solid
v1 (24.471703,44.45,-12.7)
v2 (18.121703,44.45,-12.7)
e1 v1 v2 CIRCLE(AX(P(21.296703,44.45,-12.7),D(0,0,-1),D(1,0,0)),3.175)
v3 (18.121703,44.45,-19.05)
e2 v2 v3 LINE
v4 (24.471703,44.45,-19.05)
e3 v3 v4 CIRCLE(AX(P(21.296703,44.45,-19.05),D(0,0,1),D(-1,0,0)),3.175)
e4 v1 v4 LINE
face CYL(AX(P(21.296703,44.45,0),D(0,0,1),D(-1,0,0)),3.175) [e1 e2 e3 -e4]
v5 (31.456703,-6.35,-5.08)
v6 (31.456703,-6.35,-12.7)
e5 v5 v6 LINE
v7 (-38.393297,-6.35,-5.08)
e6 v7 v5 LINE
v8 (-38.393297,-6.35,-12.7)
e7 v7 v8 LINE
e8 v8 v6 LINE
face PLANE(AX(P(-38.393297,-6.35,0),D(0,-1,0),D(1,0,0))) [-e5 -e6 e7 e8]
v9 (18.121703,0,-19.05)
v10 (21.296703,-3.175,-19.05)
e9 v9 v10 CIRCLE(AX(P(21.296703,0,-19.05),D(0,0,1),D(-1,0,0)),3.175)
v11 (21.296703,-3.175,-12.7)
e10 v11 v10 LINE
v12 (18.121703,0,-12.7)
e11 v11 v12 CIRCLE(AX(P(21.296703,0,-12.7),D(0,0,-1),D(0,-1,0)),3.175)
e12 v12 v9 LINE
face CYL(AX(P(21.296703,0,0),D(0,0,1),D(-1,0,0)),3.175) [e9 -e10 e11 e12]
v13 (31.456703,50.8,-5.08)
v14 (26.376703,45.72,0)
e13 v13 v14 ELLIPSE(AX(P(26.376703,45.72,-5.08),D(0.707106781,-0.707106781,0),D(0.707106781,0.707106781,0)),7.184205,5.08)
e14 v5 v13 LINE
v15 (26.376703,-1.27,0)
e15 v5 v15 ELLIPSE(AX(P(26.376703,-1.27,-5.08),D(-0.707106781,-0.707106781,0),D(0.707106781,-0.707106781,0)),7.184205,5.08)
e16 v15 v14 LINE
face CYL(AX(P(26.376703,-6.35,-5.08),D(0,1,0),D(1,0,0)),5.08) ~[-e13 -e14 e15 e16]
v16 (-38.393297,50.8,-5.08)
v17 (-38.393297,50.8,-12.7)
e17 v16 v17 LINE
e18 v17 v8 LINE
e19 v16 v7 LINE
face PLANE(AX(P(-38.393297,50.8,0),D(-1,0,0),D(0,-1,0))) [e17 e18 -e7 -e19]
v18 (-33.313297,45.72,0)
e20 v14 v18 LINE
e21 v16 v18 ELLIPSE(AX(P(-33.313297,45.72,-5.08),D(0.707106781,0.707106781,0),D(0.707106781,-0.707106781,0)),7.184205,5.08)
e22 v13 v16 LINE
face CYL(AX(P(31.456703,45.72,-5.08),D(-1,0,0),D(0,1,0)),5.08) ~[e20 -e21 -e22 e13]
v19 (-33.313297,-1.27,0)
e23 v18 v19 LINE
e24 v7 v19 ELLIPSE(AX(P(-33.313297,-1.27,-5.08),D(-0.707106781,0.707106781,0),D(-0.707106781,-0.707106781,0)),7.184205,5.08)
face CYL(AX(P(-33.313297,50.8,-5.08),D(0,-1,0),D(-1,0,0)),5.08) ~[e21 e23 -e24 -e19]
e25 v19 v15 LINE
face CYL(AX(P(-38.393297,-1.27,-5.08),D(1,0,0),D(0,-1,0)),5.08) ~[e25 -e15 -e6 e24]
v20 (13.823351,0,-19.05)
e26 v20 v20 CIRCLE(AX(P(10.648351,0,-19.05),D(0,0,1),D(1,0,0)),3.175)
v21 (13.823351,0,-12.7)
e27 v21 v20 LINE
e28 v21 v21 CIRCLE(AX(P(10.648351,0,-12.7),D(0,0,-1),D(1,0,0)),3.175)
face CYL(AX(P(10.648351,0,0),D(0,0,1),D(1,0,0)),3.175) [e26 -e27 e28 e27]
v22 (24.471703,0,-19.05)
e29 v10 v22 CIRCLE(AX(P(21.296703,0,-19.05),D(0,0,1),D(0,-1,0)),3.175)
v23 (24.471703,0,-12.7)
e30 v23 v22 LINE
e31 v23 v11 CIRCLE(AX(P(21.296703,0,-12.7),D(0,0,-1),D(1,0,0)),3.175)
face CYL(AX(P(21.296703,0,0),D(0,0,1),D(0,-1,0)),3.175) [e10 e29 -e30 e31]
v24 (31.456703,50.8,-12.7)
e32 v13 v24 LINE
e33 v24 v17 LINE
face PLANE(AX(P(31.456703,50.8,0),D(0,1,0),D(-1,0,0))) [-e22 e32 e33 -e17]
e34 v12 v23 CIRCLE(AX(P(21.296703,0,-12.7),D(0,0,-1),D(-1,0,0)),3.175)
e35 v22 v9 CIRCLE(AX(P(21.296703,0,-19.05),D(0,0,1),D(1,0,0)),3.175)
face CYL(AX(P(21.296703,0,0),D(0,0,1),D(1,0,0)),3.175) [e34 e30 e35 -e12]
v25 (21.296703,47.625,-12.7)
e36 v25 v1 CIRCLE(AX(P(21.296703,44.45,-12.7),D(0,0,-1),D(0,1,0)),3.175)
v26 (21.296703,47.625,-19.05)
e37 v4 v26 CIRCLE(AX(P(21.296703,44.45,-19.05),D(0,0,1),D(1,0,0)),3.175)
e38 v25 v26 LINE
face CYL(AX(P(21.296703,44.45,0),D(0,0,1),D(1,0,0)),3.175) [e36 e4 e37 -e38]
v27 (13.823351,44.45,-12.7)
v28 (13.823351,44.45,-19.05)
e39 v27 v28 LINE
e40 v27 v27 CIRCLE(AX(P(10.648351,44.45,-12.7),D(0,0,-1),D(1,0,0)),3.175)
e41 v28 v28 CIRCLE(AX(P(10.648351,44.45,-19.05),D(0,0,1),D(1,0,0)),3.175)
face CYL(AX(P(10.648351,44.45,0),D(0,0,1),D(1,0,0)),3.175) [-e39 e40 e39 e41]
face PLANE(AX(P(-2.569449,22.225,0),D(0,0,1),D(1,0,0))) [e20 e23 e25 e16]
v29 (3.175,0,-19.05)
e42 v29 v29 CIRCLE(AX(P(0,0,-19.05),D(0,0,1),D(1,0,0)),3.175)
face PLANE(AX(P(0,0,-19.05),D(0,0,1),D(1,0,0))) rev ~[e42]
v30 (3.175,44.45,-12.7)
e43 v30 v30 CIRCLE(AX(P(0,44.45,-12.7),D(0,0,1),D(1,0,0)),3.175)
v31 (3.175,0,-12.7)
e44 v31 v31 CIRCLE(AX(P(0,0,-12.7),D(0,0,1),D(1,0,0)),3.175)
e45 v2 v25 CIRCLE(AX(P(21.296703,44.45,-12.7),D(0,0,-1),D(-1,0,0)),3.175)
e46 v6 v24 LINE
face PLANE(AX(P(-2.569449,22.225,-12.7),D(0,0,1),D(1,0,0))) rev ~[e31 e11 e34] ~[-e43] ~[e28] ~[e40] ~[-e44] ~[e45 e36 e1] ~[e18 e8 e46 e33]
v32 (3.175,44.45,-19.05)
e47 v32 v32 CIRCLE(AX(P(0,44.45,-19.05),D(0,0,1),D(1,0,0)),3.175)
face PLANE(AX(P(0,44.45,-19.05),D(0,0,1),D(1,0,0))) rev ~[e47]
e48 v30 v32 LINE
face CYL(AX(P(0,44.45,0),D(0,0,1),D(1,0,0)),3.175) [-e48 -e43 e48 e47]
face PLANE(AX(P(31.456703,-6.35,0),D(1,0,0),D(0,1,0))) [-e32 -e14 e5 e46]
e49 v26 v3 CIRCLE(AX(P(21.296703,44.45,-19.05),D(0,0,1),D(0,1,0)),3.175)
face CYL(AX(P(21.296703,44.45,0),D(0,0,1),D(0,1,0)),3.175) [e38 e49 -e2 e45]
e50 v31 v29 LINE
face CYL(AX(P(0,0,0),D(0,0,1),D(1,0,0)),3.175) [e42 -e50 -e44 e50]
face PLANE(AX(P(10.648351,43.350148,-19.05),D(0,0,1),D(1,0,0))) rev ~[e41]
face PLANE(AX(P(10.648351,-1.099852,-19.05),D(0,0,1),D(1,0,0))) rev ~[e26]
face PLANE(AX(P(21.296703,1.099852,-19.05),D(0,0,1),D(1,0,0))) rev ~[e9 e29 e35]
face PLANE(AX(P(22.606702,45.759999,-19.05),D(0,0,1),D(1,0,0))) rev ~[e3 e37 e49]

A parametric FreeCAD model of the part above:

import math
import FreeCAD as App
import Part
import Sketcher
from FreeCAD import Vector
Q = App.Units.Quantity


def edges_at(feature, points):
    """Names of the edges that pass closest to the given points."""
    edges = feature.Shape.Edges
    near = lambda p: min(range(len(edges)), key=lambda i: edges[i].distToShape(Part.Vertex(*p))[0])
    return sorted({f"Edge{near(p) + 1}" for p in points})


def add_polygon(sketch, points):
    """Adds a closed chain of lines whose ends are joined by coincident constraints."""
    first, n = sketch.GeometryCount, len(points)
    for a, b in zip(points, points[1:] + points[:1]):
        sketch.addGeometry(Part.LineSegment(App.Vector(*a, 0), App.Vector(*b, 0)), False)
    for i in range(n):
        sketch.addConstraint(Sketcher.Constraint("Coincident", first + i, 2, first + (i + 1) % n, 1))

doc = App.newDocument("Part")
body = doc.addObject("PartDesign::Body", "Body")

# Sketch on XY plane
sketch1 = body.newObject("Sketcher::SketchObject", "Sketch")
sketch1.AttachmentSupport = (doc.getObject("XY_Plane"), [""])
sketch1.MapMode = "FlatFace"
add_polygon(sketch1, [(-38.4, 50.8), (-38.4, -6.3), (31.5, -6.3), (31.5, 50.8)])  # lines 0-3
sketch1.addGeometry(Part.ArcOfCircle(Part.Circle(Vector(21.3, 0, 0), Vector(0, 0, 1), 3.2), math.radians(180), math.radians(270)), False)  # 4
sketch1.addGeometry(Part.ArcOfCircle(Part.Circle(Vector(21.3, 0, 0), Vector(0, 0, 1), 3.2), math.radians(0), math.radians(180)), False)  # 5
sketch1.addGeometry(Part.ArcOfCircle(Part.Circle(Vector(21.3, 0, 0), Vector(0, 0, 1), 3.2), math.radians(-90), math.radians(0)), False)  # 6
sketch1.addGeometry(Part.ArcOfCircle(Part.Circle(Vector(21.3, 44.5, 0), Vector(0, 0, 1), 3.2), math.radians(90), math.radians(180)), False)  # 7
sketch1.addGeometry(Part.ArcOfCircle(Part.Circle(Vector(21.3, 44.5, 0), Vector(0, 0, 1), 3.2), math.radians(0), math.radians(90)), False)  # 8
sketch1.addGeometry(Part.ArcOfCircle(Part.Circle(Vector(21.3, 44.5, 0), Vector(0, 0, 1), 3.2), math.radians(180), math.radians(360)), False)  # 9
sketch1.addGeometry(Part.Circle(Vector(0, 0, 0), Vector(0, 0, 1), 3.2), False)  # 10
sketch1.addGeometry(Part.Circle(Vector(10.6, 0, 0), Vector(0, 0, 1), 3.2), False)  # 11
sketch1.addGeometry(Part.Circle(Vector(0, 44.5, 0), Vector(0, 0, 1), 3.2), False)  # 12
sketch1.addGeometry(Part.Circle(Vector(10.6, 44.5, 0), Vector(0, 0, 1), 3.2), False)  # 13
sketch1.addConstraint(Sketcher.Constraint("Tangent", 4, 1, 5, 2))
sketch1.addConstraint(Sketcher.Constraint("Tangent", 5, 1, 6, 2))
sketch1.addConstraint(Sketcher.Constraint("Tangent", 6, 1, 4, 2))
sketch1.addConstraint(Sketcher.Constraint("Tangent", 7, 1, 8, 2))
sketch1.addConstraint(Sketcher.Constraint("Tangent", 8, 1, 9, 2))
sketch1.addConstraint(Sketcher.Constraint("Tangent", 9, 1, 7, 2))
sketch1.addConstraint(Sketcher.Constraint("Vertical", 0))
sketch1.addConstraint(Sketcher.Constraint("Horizontal", 1))
sketch1.addConstraint(Sketcher.Constraint("Vertical", 2))
sketch1.addConstraint(Sketcher.Constraint("Horizontal", 3))
sketch1.addConstraint(Sketcher.Constraint("Coincident", 10, 3, -1, 1))
sketch1.addConstraint(Sketcher.Constraint("Equal", 6, 7))
sketch1.addConstraint(Sketcher.Constraint("Equal", 9, 10))
sketch1.addConstraint(Sketcher.Constraint("Equal", 10, 11))
sketch1.addConstraint(Sketcher.Constraint("Equal", 11, 12))
sketch1.addConstraint(Sketcher.Constraint("Equal", 12, 13))
sketch1.addConstraint(Sketcher.Constraint("PointOnObject", 4, 3, -1))
sketch1.addConstraint(Sketcher.Constraint("PointOnObject", 11, 3, -1))
sketch1.addConstraint(Sketcher.Constraint("PointOnObject", 12, 3, -2))
sketch1.addConstraint(Sketcher.Constraint("PointOnObject", 4, 1, -1))
sketch1.addConstraint(Sketcher.Constraint("PointOnObject", 5, 1, -1))
sketch1.addConstraint(Sketcher.Constraint("Horizontal", 9, 3, 12, 3))
sketch1.addConstraint(Sketcher.Constraint("Horizontal", 12, 3, 13, 3))
sketch1.addConstraint(Sketcher.Constraint("Horizontal", 13, 3, 8, 1))
sketch1.addConstraint(Sketcher.Constraint("Horizontal", 8, 1, 9, 1))
sketch1.addConstraint(Sketcher.Constraint("Vertical", 6, 3, 7, 3))
sketch1.addConstraint(Sketcher.Constraint("Vertical", 11, 3, 13, 3))
sketch1.addConstraint(Sketcher.Constraint("Vertical", 9, 3, 6, 1))
sketch1.addConstraint(Sketcher.Constraint("Vertical", 6, 1, 7, 1))
sketch1.addConstraint(Sketcher.Constraint("Diameter", 10, Q("0.25 in")))
sketch1.addConstraint(Sketcher.Constraint("DistanceY", -1, 1, 2, 2, Q("2 in")))
sketch1.addConstraint(Sketcher.Constraint("DistanceX", 1, 1, 1, 2, Q("2.75 in")))
sketch1.addConstraint(Sketcher.Constraint("DistanceY", 0, 2, 0, 1, Q("2.25 in")))
sketch1.addConstraint(Sketcher.Constraint("DistanceX", 4, 3, 1, 2, Q("0.4 in")))
sketch1.addConstraint(Sketcher.Constraint("DistanceY", -1, 1, 7, 3, Q("1.75 in")))
sketch1.addConstraint(Sketcher.Constraint("DistanceX", -1, 1, 11, 3, Q("10.648351 mm")))
sketch1.addConstraint(Sketcher.Constraint("DistanceX", 11, 3, 4, 3, Q("10.648351 mm")))
pad1 = body.newObject("PartDesign::Pad", "Pad")
pad1.Profile = sketch1
pad1.Length = Q("0.5 in")
pad1.Reversed = True

# Sketch on XY plane
sketch2 = body.newObject("Sketcher::SketchObject", "Sketch001")
sketch2.AttachmentSupport = (doc.getObject("XY_Plane"), [""])
sketch2.MapMode = "FlatFace"
sketch2.addGeometry(Part.Circle(Vector(0, 0, 0), Vector(0, 0, 1), 3.2), False)
sketch2.addGeometry(Part.Circle(Vector(10.6, 0, 0), Vector(0, 0, 1), 3.2), False)
sketch2.addGeometry(Part.ArcOfCircle(Part.Circle(Vector(21.3, 0, 0), Vector(0, 0, 1), 3.2), math.radians(0), math.radians(180)), False)
sketch2.addGeometry(Part.ArcOfCircle(Part.Circle(Vector(21.3, 0, 0), Vector(0, 0, 1), 3.2), math.radians(180), math.radians(270)), False)
sketch2.addGeometry(Part.ArcOfCircle(Part.Circle(Vector(21.3, 0, 0), Vector(0, 0, 1), 3.2), math.radians(-90), math.radians(0)), False)
sketch2.addGeometry(Part.Circle(Vector(0, 44.5, 0), Vector(0, 0, 1), 3.2), False)
sketch2.addGeometry(Part.Circle(Vector(10.6, 44.5, 0), Vector(0, 0, 1), 3.2), False)
sketch2.addGeometry(Part.ArcOfCircle(Part.Circle(Vector(21.3, 44.5, 0), Vector(0, 0, 1), 3.2), math.radians(0), math.radians(90)), False)
sketch2.addGeometry(Part.ArcOfCircle(Part.Circle(Vector(21.3, 44.5, 0), Vector(0, 0, 1), 3.2), math.radians(90), math.radians(180)), False)
sketch2.addGeometry(Part.ArcOfCircle(Part.Circle(Vector(21.3, 44.5, 0), Vector(0, 0, 1), 3.2), math.radians(180), math.radians(360)), False)
sketch2.addConstraint(Sketcher.Constraint("Tangent", 2, 2, 3, 1))
sketch2.addConstraint(Sketcher.Constraint("Tangent", 3, 2, 4, 1))
sketch2.addConstraint(Sketcher.Constraint("Tangent", 4, 2, 2, 1))
sketch2.addConstraint(Sketcher.Constraint("Tangent", 7, 2, 8, 1))
sketch2.addConstraint(Sketcher.Constraint("Tangent", 8, 2, 9, 1))
sketch2.addConstraint(Sketcher.Constraint("Tangent", 9, 2, 7, 1))
sketch2.addConstraint(Sketcher.Constraint("Coincident", 0, 3, -1, 1))
sketch2.addConstraint(Sketcher.Constraint("Equal", 0, 1))
sketch2.addConstraint(Sketcher.Constraint("Equal", 1, 2))
sketch2.addConstraint(Sketcher.Constraint("Equal", 4, 5))
sketch2.addConstraint(Sketcher.Constraint("Equal", 5, 6))
sketch2.addConstraint(Sketcher.Constraint("Equal", 6, 7))
sketch2.addConstraint(Sketcher.Constraint("PointOnObject", 1, 3, -1))
sketch2.addConstraint(Sketcher.Constraint("PointOnObject", 2, 3, -1))
sketch2.addConstraint(Sketcher.Constraint("PointOnObject", 5, 3, -2))
sketch2.addConstraint(Sketcher.Constraint("PointOnObject", 2, 2, -1))
sketch2.addConstraint(Sketcher.Constraint("PointOnObject", 4, 2, -1))
sketch2.addConstraint(Sketcher.Constraint("Horizontal", 5, 3, 6, 3))
sketch2.addConstraint(Sketcher.Constraint("Horizontal", 6, 3, 7, 3))
sketch2.addConstraint(Sketcher.Constraint("Horizontal", 9, 3, 8, 2))
sketch2.addConstraint(Sketcher.Constraint("Horizontal", 8, 2, 9, 2))
sketch2.addConstraint(Sketcher.Constraint("Vertical", 1, 3, 6, 3))
sketch2.addConstraint(Sketcher.Constraint("Vertical", 4, 3, 7, 3))
sketch2.addConstraint(Sketcher.Constraint("Vertical", 9, 3, 3, 2))
sketch2.addConstraint(Sketcher.Constraint("Vertical", 3, 2, 7, 2))
sketch2.addConstraint(Sketcher.Constraint("Diameter", 0, Q("0.25 in")))
sketch2.addConstraint(Sketcher.Constraint("DistanceY", -1, 1, 5, 3, Q("1.75 in")))
sketch2.addConstraint(Sketcher.Constraint("DistanceX", -1, 1, 1, 3, Q("10.648351 mm")))
sketch2.addConstraint(Sketcher.Constraint("DistanceX", 1, 3, 2, 3, Q("10.648351 mm")))
pad2 = body.newObject("PartDesign::Pad", "Pad001")
pad2.Profile = sketch2
pad2.Length = Q("0.75 in")
pad2.Reversed = True
doc.recompute()

fillet = body.newObject("PartDesign::Fillet", "Fillet")
fillet.Base = (pad2, edges_at(pad2, [
    (-38.393, 22.225, 0),
    (-3.468, -6.35, 0),
    (31.457, 22.225, 0),
    (-3.468, 50.8, 0),
]))
fillet.Radius = Q("0.2 in")

doc.recompute()
